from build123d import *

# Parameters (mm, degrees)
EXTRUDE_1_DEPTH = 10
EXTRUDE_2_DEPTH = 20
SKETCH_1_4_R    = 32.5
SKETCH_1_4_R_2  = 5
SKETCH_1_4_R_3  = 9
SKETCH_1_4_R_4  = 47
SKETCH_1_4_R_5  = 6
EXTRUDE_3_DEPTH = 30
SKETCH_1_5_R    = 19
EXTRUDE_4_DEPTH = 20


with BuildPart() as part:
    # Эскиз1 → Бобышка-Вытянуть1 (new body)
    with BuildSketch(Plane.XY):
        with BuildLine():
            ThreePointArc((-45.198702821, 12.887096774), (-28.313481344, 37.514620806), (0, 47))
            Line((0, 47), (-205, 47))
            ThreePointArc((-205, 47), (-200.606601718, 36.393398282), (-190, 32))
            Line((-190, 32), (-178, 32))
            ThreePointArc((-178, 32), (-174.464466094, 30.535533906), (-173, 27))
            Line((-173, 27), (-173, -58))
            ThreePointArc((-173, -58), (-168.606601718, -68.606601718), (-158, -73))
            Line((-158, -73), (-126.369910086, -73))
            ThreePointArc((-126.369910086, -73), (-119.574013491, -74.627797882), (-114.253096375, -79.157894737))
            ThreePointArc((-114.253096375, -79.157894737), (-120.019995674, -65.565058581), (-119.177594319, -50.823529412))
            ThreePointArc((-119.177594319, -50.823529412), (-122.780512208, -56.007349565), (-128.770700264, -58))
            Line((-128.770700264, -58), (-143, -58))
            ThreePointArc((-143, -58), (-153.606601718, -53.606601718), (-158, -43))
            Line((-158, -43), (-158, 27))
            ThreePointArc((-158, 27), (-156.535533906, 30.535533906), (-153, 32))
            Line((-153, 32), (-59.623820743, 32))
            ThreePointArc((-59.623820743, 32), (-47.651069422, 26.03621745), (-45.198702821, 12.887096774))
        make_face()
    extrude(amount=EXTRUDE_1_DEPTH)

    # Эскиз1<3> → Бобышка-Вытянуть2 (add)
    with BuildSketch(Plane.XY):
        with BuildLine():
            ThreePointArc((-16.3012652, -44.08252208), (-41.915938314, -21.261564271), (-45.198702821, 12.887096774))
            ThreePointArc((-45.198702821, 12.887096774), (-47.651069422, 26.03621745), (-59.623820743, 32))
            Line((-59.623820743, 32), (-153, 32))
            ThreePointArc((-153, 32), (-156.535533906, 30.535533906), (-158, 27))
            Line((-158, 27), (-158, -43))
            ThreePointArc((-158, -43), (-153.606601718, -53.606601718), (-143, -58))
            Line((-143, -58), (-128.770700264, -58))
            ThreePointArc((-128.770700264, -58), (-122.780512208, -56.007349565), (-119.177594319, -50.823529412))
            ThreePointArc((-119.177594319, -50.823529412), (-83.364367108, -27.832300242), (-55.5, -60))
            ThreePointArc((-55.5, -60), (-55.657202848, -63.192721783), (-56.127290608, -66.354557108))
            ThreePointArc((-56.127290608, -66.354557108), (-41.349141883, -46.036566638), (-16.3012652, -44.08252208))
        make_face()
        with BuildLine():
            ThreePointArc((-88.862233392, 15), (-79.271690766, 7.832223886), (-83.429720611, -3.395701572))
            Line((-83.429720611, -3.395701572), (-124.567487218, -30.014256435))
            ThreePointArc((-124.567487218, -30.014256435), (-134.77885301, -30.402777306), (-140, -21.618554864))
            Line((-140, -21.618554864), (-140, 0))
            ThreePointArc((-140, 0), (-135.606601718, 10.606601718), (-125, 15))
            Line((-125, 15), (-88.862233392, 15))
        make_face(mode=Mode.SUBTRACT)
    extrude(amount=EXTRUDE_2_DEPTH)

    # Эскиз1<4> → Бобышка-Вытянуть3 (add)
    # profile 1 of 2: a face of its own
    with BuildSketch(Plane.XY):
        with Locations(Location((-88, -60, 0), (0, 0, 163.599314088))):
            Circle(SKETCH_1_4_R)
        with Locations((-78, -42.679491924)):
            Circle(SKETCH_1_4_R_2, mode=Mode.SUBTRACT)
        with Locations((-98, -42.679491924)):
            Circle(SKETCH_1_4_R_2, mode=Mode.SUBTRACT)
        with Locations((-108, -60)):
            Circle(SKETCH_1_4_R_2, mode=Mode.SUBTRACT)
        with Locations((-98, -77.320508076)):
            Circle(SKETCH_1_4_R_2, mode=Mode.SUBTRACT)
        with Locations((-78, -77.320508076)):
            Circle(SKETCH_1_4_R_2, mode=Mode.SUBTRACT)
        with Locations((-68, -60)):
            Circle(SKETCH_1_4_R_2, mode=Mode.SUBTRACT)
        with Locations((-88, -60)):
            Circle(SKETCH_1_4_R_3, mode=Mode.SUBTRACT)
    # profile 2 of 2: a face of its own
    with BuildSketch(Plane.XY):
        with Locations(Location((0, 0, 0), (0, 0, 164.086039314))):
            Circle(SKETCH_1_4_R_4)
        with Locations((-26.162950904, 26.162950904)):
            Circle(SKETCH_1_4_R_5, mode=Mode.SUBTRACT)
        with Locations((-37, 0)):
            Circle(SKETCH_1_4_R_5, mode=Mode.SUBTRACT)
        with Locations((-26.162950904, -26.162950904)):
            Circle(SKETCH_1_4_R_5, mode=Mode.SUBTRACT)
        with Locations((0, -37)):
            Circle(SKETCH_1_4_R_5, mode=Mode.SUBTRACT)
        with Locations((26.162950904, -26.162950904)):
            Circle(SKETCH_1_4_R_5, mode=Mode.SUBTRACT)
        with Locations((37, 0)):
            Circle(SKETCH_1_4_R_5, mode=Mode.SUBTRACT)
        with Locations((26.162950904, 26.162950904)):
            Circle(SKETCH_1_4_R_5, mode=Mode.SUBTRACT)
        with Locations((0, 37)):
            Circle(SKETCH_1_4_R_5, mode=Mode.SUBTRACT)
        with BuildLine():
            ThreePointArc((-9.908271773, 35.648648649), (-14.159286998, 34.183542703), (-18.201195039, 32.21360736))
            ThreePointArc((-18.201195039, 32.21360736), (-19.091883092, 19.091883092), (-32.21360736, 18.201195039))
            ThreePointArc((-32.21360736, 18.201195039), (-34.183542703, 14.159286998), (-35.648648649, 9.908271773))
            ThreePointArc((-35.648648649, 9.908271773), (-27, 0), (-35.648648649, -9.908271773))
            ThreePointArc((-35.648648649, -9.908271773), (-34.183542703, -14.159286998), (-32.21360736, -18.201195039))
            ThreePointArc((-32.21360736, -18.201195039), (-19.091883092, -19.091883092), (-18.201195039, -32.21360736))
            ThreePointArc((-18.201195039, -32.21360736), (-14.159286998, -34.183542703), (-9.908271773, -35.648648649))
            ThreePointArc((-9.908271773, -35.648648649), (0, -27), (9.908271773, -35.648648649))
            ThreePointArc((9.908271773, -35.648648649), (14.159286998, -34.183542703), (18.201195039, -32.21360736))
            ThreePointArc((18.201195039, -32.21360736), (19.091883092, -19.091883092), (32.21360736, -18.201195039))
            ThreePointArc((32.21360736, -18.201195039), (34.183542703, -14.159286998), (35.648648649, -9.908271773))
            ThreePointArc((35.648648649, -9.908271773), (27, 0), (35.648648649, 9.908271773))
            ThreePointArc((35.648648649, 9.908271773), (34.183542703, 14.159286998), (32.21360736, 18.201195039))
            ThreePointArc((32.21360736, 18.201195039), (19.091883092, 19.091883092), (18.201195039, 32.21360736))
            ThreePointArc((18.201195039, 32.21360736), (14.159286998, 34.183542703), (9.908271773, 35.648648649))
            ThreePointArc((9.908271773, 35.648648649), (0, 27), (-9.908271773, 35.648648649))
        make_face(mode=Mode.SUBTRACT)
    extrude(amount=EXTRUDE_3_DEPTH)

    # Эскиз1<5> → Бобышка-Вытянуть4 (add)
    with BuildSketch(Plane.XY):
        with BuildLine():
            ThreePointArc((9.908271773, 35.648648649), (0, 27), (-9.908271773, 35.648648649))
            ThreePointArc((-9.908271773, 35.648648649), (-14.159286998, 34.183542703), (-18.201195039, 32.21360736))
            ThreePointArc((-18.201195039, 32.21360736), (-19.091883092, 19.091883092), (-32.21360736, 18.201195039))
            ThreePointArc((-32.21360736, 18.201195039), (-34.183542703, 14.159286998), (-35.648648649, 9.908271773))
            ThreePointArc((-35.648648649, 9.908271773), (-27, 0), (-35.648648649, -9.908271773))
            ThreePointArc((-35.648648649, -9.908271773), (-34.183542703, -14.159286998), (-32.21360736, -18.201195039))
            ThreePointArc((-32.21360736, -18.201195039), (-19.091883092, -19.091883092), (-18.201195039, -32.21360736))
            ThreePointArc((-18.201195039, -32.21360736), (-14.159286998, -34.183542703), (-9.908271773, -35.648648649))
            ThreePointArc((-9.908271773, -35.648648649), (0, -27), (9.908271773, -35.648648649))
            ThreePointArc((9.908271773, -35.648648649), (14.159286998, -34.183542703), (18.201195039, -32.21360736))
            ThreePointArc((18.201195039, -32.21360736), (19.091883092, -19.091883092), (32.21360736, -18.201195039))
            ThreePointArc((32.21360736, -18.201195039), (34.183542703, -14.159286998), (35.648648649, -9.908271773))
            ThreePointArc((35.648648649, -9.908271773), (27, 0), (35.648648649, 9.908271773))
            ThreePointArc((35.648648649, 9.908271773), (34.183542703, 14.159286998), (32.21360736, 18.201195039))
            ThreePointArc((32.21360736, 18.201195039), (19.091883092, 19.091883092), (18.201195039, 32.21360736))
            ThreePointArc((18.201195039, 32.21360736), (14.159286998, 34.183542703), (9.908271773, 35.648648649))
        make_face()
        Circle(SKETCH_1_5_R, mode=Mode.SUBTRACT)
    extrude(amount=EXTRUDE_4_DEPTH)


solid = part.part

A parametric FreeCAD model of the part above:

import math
import FreeCAD as App
import Part
import Sketcher

V = App.Vector

doc = App.newDocument("Part")
body = doc.addObject("PartDesign::Body", "Body")

# Sketch on XY plane
sketch1 = doc.addObject("Sketcher::SketchObject", "Sketch")
body.addObject(sketch1)
sketch1.AttachmentSupport = (doc.XY_Plane, [""])
sketch1.MapMode = "FlatFace"
sketch1.addGeometry([
    Part.ArcOfCircle(Part.Circle(V(0, 0, 0), V(0, 0, 1), 47), math.radians(90), math.radians(164)),  # 0
    Part.LineSegment(V(0, 47, 0), V(-205, 47, 0)),  # 1
    Part.ArcOfCircle(Part.Circle(V(-190, 47, 0), V(0, 0, 1), 15), math.radians(180), math.radians(270)),  # 2
    Part.LineSegment(V(-190, 32, 0), V(-178, 32, 0)),  # 3
    Part.ArcOfCircle(Part.Circle(V(-178, 27, 0), V(0, 0, 1), 5), math.radians(0), math.radians(90)),  # 4
    Part.LineSegment(V(-173, 27, 0), V(-173, -58, 0)),  # 5
    Part.ArcOfCircle(Part.Circle(V(-158, -58, 0), V(0, 0, 1), 15), math.radians(180), math.radians(270)),  # 6
    Part.LineSegment(V(-158, -73, 0), V(-126, -73, 0)),  # 7
    Part.ArcOfCircle(Part.Circle(V(-126, -88, 0), V(0, 0, 1), 15), math.radians(36), math.radians(90)),  # 8
    Part.ArcOfCircle(Part.Circle(V(-88, -60, 0), V(0, 0, 1), 33), math.radians(164), math.radians(216)),  # 9
    Part.ArcOfCircle(Part.Circle(V(-129, -48, 0), V(0, 0, 1), 10), math.radians(-90), math.radians(-16)),  # 10
    Part.LineSegment(V(-129, -58, 0), V(-143, -58, 0)),  # 11
    Part.ArcOfCircle(Part.Circle(V(-143, -43, 0), V(0, 0, 1), 15), math.radians(180), math.radians(270)),  # 12
    Part.LineSegment(V(-158, -43, 0), V(-158, 27, 0)),  # 13
    Part.ArcOfCircle(Part.Circle(V(-153, 27, 0), V(0, 0, 1), 5), math.radians(90), math.radians(180)),  # 14
    Part.LineSegment(V(-153, 32, 0), V(-60, 32, 0)),  # 15
    Part.ArcOfCircle(Part.Circle(V(-60, 17, 0), V(0, 0, 1), 15), math.radians(-16), math.radians(90)),  # 16
], False)
sketch1.addConstraint([
    Sketcher.Constraint("Tangent", 0, 1, 1, 1),
    Sketcher.Constraint("Coincident", 1, 2, 2, 1),
    Sketcher.Constraint("Tangent", 2, 2, 3, 1),
    Sketcher.Constraint("Tangent", 3, 2, 4, 2),
    Sketcher.Constraint("Tangent", 4, 1, 5, 1),
    Sketcher.Constraint("Tangent", 5, 2, 6, 1),
    Sketcher.Constraint("Tangent", 6, 2, 7, 1),
    Sketcher.Constraint("Tangent", 7, 2, 8, 2),
    Sketcher.Constraint("Tangent", 8, 1, 9, 2),
    Sketcher.Constraint("Tangent", 9, 1, 10, 2),
    Sketcher.Constraint("Tangent", 10, 1, 11, 1),
    Sketcher.Constraint("Tangent", 11, 2, 12, 2),
    Sketcher.Constraint("Tangent", 12, 1, 13, 1),
    Sketcher.Constraint("Tangent", 13, 2, 14, 2),
    Sketcher.Constraint("Tangent", 14, 1, 15, 1),
    Sketcher.Constraint("Tangent", 15, 2, 16, 2),
    Sketcher.Constraint("Tangent", 16, 1, 0, 2),
    Sketcher.Constraint("Horizontal", 1),
    Sketcher.Constraint("Horizontal", 3),
    Sketcher.Constraint("Vertical", 5),
    Sketcher.Constraint("Horizontal", 7),
    Sketcher.Constraint("Horizontal", 11),
    Sketcher.Constraint("Vertical", 13),
    Sketcher.Constraint("Horizontal", 15),
    Sketcher.Constraint("Coincident", 0, 3, -1, 1),
    Sketcher.Constraint("Equal", 2, 6),
    Sketcher.Constraint("Equal", 6, 8),
    Sketcher.Constraint("Equal", 8, 12),
    Sketcher.Constraint("Equal", 4, 14),
    Sketcher.Constraint("Equal", 12, 16),
    Sketcher.Constraint("Horizontal", 4, 3, 14, 3),
    Sketcher.Constraint("Horizontal", 2, 3, 0, 1),
    Sketcher.Constraint("Horizontal", 5, 2, 10, 1),
    Sketcher.Constraint("Vertical", 6, 2, 12, 1),
    Sketcher.Constraint("Radius", 0, 47.0),
    Sketcher.Constraint("Radius", 2, 15.0),
    Sketcher.Constraint("Radius", 4, 5.0),
    Sketcher.Constraint("Radius", 10, 10.0),
    Sketcher.Constraint("Radius", 9, 32.5),
    Sketcher.Constraint("DistanceX", 1, 2, 1, 1, 205.0),
    Sketcher.Constraint("DistanceX", 3, 1, 3, 2, 12.0),
    Sketcher.Constraint("DistanceY", 5, 2, 5, 1, 85.0),
    Sketcher.Constraint("DistanceX", 9, 3, -1, 1, 88.0),
    Sketcher.Constraint("DistanceY", 9, 3, -1, 1, 60.0),
])
pad1 = doc.addObject("PartDesign::Pad", "Pad")
body.addObject(pad1)
pad1.Profile = sketch1
pad1.Length = 10

# Sketch on XY plane
sketch2 = doc.addObject("Sketcher::SketchObject", "Sketch001")
body.addObject(sketch2)
sketch2.AttachmentSupport = (doc.XY_Plane, [""])
sketch2.MapMode = "FlatFace"
sketch2.addGeometry([
    Part.ArcOfCircle(Part.Circle(V(0, 0, 0), V(0, 0, 1), 47), math.radians(164), math.radians(250)),  # 0
    Part.ArcOfCircle(Part.Circle(V(-60, 17, 0), V(0, 0, 1), 15), math.radians(-16), math.radians(90)),  # 1
    Part.LineSegment(V(-60, 32, 0), V(-153, 32, 0)),  # 2
    Part.ArcOfCircle(Part.Circle(V(-153, 27, 0), V(0, 0, 1), 5), math.radians(90), math.radians(180)),  # 3
    Part.LineSegment(V(-158, 27, 0), V(-158, -43, 0)),  # 4
    Part.ArcOfCircle(Part.Circle(V(-143, -43, 0), V(0, 0, 1), 15), math.radians(180), math.radians(270)),  # 5
    Part.LineSegment(V(-143, -58, 0), V(-129, -58, 0)),  # 6
    Part.ArcOfCircle(Part.Circle(V(-129, -48, 0), V(0, 0, 1), 10), math.radians(-90), math.radians(-16)),  # 7
    Part.ArcOfCircle(Part.Circle(V(-88, -60, 0), V(0, 0, 1), 32), math.radians(0), math.radians(164)),  # 8
    Part.ArcOfCircle(Part.Circle(V(-88, -60, 0), V(0, 0, 1), 33), math.radians(-11.28), math.radians(0)),  # 9
    Part.ArcOfCircle(Part.Circle(V(-27, -72, 0), V(0, 0, 1), 30), math.radians(70), math.radians(169)),  # 10
    Part.LineSegment(V(-125, 15, 0), V(-89, 15, 0)),  # 11
    Part.ArcOfCircle(Part.Circle(V(-89, 5, 0), V(0, 0, 1), 10), math.radians(-57), math.radians(90)),  # 12
    Part.LineSegment(V(-83, -3, 0), V(-125, -30, 0)),  # 13
    Part.ArcOfCircle(Part.Circle(V(-130, -22, 0), V(0, 0, 1), 10), math.radians(180), math.radians(303)),  # 14
    Part.LineSegment(V(-140, -22, 0), V(-140, 0, 0)),  # 15
    Part.ArcOfCircle(Part.Circle(V(-125, 0, 0), V(0, 0, 1), 15), math.radians(90), math.radians(180)),  # 16
], False)
sketch2.addConstraint([
    Sketcher.Constraint("Tangent", 0, 1, 1, 1),
    Sketcher.Constraint("Tangent", 1, 2, 2, 1),
    Sketcher.Constraint("Tangent", 2, 2, 3, 1),
    Sketcher.Constraint("Tangent", 3, 2, 4, 1),
    Sketcher.Constraint("Tangent", 4, 2, 5, 1),
    Sketcher.Constraint("Tangent", 5, 2, 6, 1),
    Sketcher.Constraint("Tangent", 6, 2, 7, 1),
    Sketcher.Constraint("Tangent", 7, 2, 8, 2),
    Sketcher.Constraint("Tangent", 8, 1, 9, 2),
    Sketcher.Constraint("Tangent", 9, 1, 10, 2),
    Sketcher.Constraint("Tangent", 10, 1, 0, 2),
    Sketcher.Constraint("Tangent", 11, 2, 12, 2),
    Sketcher.Constraint("Tangent", 12, 1, 13, 1),
    Sketcher.Constraint("Tangent", 13, 2, 14, 2),
    Sketcher.Constraint("Tangent", 14, 1, 15, 1),
    Sketcher.Constraint("Tangent", 15, 2, 16, 2),
    Sketcher.Constraint("Tangent", 16, 1, 11, 1),
    Sketcher.Constraint("Horizontal", 2),
    Sketcher.Constraint("Vertical", 4),
    Sketcher.Constraint("Horizontal", 6),
    Sketcher.Constraint("Horizontal", 11),
    Sketcher.Constraint("Vertical", 15),
    Sketcher.Constraint("Coincident", 0, 3, -1, 1),
    Sketcher.Constraint("Equal", 1, 5),
    Sketcher.Constraint("Equal", 8, 9),
    Sketcher.Constraint("Equal", 7, 12),
    Sketcher.Constraint("Equal", 12, 14),
    Sketcher.Constraint("Equal", 5, 16),
    Sketcher.Constraint("PointOnObject", 16, 3, -1),
    Sketcher.Constraint("Horizontal", 9, 3, 8, 1),
    Sketcher.Constraint("Radius", 0, 47.0),
    Sketcher.Constraint("Radius", 1, 15.0),
    Sketcher.Constraint("Radius", 3, 5.0),
    Sketcher.Constraint("Radius", 7, 10.0),
    Sketcher.Constraint("Radius", 10, 30.0),
    Sketcher.Constraint("Radius", 8, 32.5),
    Sketcher.Constraint("DistanceY", 4, 2, 4, 1, 70.0),
    Sketcher.Constraint("DistanceY", -1, 1, 1, 3, 17.0),
    Sketcher.Constraint("DistanceX", 3, 3, -1, 1, 153.0),
    Sketcher.Constraint("DistanceX", 8, 3, -1, 1, 88.0),
    Sketcher.Constraint("DistanceY", 8, 3, -1, 1, 60.0),
    Sketcher.Constraint("DistanceX", 14, 3, -1, 1, 130.0),
    Sketcher.Constraint("DistanceY", 12, 1, -1, 1, 3.395702),
    Sketcher.Constraint("DistanceX", 12, 1, 1, 3, 23.8059),
])
pad2 = doc.addObject("PartDesign::Pad", "Pad001")
body.addObject(pad2)
pad2.Profile = sketch2
pad2.Length = 20

# Sketch on XY plane
sketch3 = doc.addObject("Sketcher::SketchObject", "Sketch002")
body.addObject(sketch3)
sketch3.AttachmentSupport = (doc.XY_Plane, [""])
sketch3.MapMode = "FlatFace"
sketch3.addGeometry([
    Part.Circle(V(-88, -60, 0), V(0, 0, 1), 32),  # 0
    Part.Circle(V(-78, -43, 0), V(0, 0, 1), 5),  # 1
    Part.Circle(V(-68, -60, 0), V(0, 0, 1), 5),  # 2
    Part.Circle(V(-98, -43, 0), V(0, 0, 1), 5),  # 3
    Part.Circle(V(-78, -77, 0), V(0, 0, 1), 5),  # 4
    Part.Circle(V(-88, -60, 0), V(0, 0, 1), 9),  # 5
    Part.Circle(V(-108, -60, 0), V(0, 0, 1), 5),  # 6
    Part.Circle(V(-98, -77, 0), V(0, 0, 1), 5),  # 7
    Part.Circle(V(0, 0, 0), V(0, 0, 1), 47),  # 8
    Part.Circle(V(26, 26, 0), V(0, 0, 1), 6),  # 9
    Part.Circle(V(37, 0, 0), V(0, 0, 1), 6),  # 10
    Part.Circle(V(0, 37, 0), V(0, 0, 1), 6),  # 11
    Part.Circle(V(-26, 26, 0), V(0, 0, 1), 6),  # 12
    Part.Circle(V(26, -26, 0), V(0, 0, 1), 6),  # 13
    Part.ArcOfCircle(Part.Circle(V(0, 0, 0), V(0, 0, 1), 37), math.radians(105.53), math.radians(119.47)),  # 14
    Part.ArcOfCircle(Part.Circle(V(0, 37, 0), V(0, 0, 1), 10), math.radians(-172), math.radians(-8)),  # 15
    Part.ArcOfCircle(Part.Circle(V(0, 0, 0), V(0, 0, 1), 37), math.radians(60.53), math.radians(74.47)),  # 16
    Part.ArcOfCircle(Part.Circle(V(26, 26, 0), V(0, 0, 1), 10), math.radians(143), math.radians(307)),  # 17
    Part.ArcOfCircle(Part.Circle(V(0, 0, 0), V(0, 0, 1), 37), math.radians(15.53), math.radians(29.47)),  # 18
    Part.ArcOfCircle(Part.Circle(V(37, 0, 0), V(0, 0, 1), 10), math.radians(98), math.radians(262)),  # 19
    Part.ArcOfCircle(Part.Circle(V(0, 0, 0), V(0, 0, 1), 37), math.radians(-29.47), math.radians(-15.53)),  # 20
    Part.ArcOfCircle(Part.Circle(V(26, -26, 0), V(0, 0, 1), 10), math.radians(53), math.radians(217)),  # 21
    Part.ArcOfCircle(Part.Circle(V(0, 0, 0), V(0, 0, 1), 37), math.radians(-74.47), math.radians(-60.53)),  # 22
    Part.ArcOfCircle(Part.Circle(V(0, -37, 0), V(0, 0, 1), 10), math.radians(8), math.radians(172)),  # 23
    Part.ArcOfCircle(Part.Circle(V(0, 0, 0), V(0, 0, 1), 37), math.radians(-119.47), math.radians(-105.53)),  # 24
    Part.ArcOfCircle(Part.Circle(V(-26, -26, 0), V(0, 0, 1), 10), math.radians(-37), math.radians(127)),  # 25
    Part.ArcOfCircle(Part.Circle(V(0, 0, 0), V(0, 0, 1), 37), math.radians(-164.47), math.radians(-150.53)),  # 26
    Part.ArcOfCircle(Part.Circle(V(-37, 0, 0), V(0, 0, 1), 10), math.radians(-82), math.radians(82)),  # 27
    Part.ArcOfCircle(Part.Circle(V(0, 0, 0), V(0, 0, 1), 37), math.radians(150.53), math.radians(164.47)),  # 28
    Part.ArcOfCircle(Part.Circle(V(-26, 26, 0), V(0, 0, 1), 10), math.radians(-127), math.radians(37)),  # 29
    Part.Circle(V(0, -37, 0), V(0, 0, 1), 6),  # 30
    Part.Circle(V(-37, 0, 0), V(0, 0, 1), 6),  # 31
    Part.Circle(V(-26, -26, 0), V(0, 0, 1), 6),  # 32
], False)
sketch3.addConstraint([
    Sketcher.Constraint("Coincident", 14, 1, 15, 1),
    Sketcher.Constraint("Coincident", 15, 2, 16, 2),
    Sketcher.Constraint("Coincident", 16, 1, 17, 1),
    Sketcher.Constraint("Coincident", 17, 2, 18, 2),
    Sketcher.Constraint("Coincident", 18, 1, 19, 1),
    Sketcher.Constraint("Coincident", 19, 2, 20, 2),
    Sketcher.Constraint("Coincident", 20, 1, 21, 1),
    Sketcher.Constraint("Coincident", 21, 2, 22, 2),
    Sketcher.Constraint("Coincident", 22, 1, 23, 1),
    Sketcher.Constraint("Coincident", 23, 2, 24, 2),
    Sketcher.Constraint("Coincident", 24, 1, 25, 1),
    Sketcher.Constraint("Coincident", 25, 2, 26, 2),
    Sketcher.Constraint("Coincident", 26, 1, 27, 1),
    Sketcher.Constraint("Coincident", 27, 2, 28, 2),
    Sketcher.Constraint("Coincident", 28, 1, 29, 1),
    Sketcher.Constraint("Coincident", 29, 2, 14, 2),
    Sketcher.Constraint("Coincident", 8, 3, -1, 1),
    Sketcher.Constraint("Coincident", 14, 3, -1, 1),
    Sketcher.Constraint("Coincident", 16, 3, -1, 1),
    Sketcher.Constraint("Coincident", 18, 3, -1, 1),
    Sketcher.Constraint("Coincident", 20, 3, -1, 1),
    Sketcher.Constraint("Coincident", 22, 3, -1, 1),
    Sketcher.Constraint("Coincident", 24, 3, -1, 1),
    Sketcher.Constraint("Coincident", 26, 3, -1, 1),
    Sketcher.Constraint("Coincident", 28, 3, -1, 1),
    Sketcher.Constraint("Coincident", 5, 3, 0, 3),
    Sketcher.Constraint("Coincident", 15, 3, 11, 3),
    Sketcher.Constraint("Coincident", 17, 3, 9, 3),
    Sketcher.Constraint("Coincident", 19, 3, 10, 3),
    Sketcher.Constraint("Coincident", 21, 3, 13, 3),
    Sketcher.Constraint("Coincident", 29, 3, 12, 3),
    Sketcher.Constraint("Coincident", 30, 3, 23, 3),
    Sketcher.Constraint("Coincident", 31, 3, 27, 3),
    Sketcher.Constraint("Coincident", 32, 3, 25, 3),
    Sketcher.Constraint("Equal", 1, 2),
    Sketcher.Constraint("Equal", 2, 3),
    Sketcher.Constraint("Equal", 3, 4),
    Sketcher.Constraint("Equal", 4, 6),
    Sketcher.Constraint("Equal", 6, 7),
    Sketcher.Constraint("Equal", 9, 10),
    Sketcher.Constraint("Equal", 10, 11),
    Sketcher.Constraint("Equal", 11, 12),
    Sketcher.Constraint("Equal", 12, 13),
    Sketcher.Constraint("Equal", 14, 16),
    Sketcher.Constraint("Equal", 15, 17),
    Sketcher.Constraint("Equal", 16, 18),
    Sketcher.Constraint("Equal", 17, 19),
    Sketcher.Constraint("Equal", 18, 20),
    Sketcher.Constraint("Equal", 19, 21),
    Sketcher.Constraint("Equal", 20, 22),
    Sketcher.Constraint("Equal", 21, 23),
    Sketcher.Constraint("Equal", 22, 24),
    Sketcher.Constraint("Equal", 23, 25),
    Sketcher.Constraint("Equal", 24, 26),
    Sketcher.Constraint("Equal", 25, 27),
    Sketcher.Constraint("Equal", 26, 28),
    Sketcher.Constraint("Equal", 27, 29),
    Sketcher.Constraint("Equal", 13, 30),
    Sketcher.Constraint("Equal", 30, 31),
    Sketcher.Constraint("Equal", 31, 32),
    Sketcher.Constraint("Symmetric", 12, 3, 13, 3, -1, 1),
    Sketcher.Constraint("Symmetric", 11, 3, 23, 3, -1, 1),
    Sketcher.Constraint("Symmetric", 9, 3, 25, 3, -1, 1),
    Sketcher.Constraint("Symmetric", 10, 3, 27, 3, -1, 1),
    Sketcher.Constraint("Symmetric", 9, 3, 12, 3, -2),
    Sketcher.Constraint("PointOnObject", 10, 3, -1),
    Sketcher.Constraint("PointOnObject", 11, 3, -2),
    Sketcher.Constraint("Horizontal", 0, 3, 2, 3),
    Sketcher.Constraint("Horizontal", 1, 3, 3, 3),
    Sketcher.Constraint("Horizontal", 5, 3, 6, 3),
    Sketcher.Constraint("Horizontal", 4, 3, 7, 3),
    Sketcher.Constraint("Vertical", 1, 3, 4, 3),
    Sketcher.Constraint("Vertical", 3, 3, 7, 3),
    Sketcher.Constraint("Diameter", 0, 65.0),
    Sketcher.Constraint("Diameter", 1, 10.0),
    Sketcher.Constraint("Diameter", 5, 18.0),
    Sketcher.Constraint("Diameter", 8, 94.0),
    Sketcher.Constraint("Diameter", 9, 12.0),
    Sketcher.Constraint("Radius", 14, 37.0),
    Sketcher.Constraint("Radius", 15, 10.0),
    Sketcher.Constraint("DistanceX", 0, 3, -1, 1, 88.0),
    Sketcher.Constraint("DistanceY", 0, 3, -1, 1, 60.0),
    Sketcher.Constraint("DistanceX", 1, 3, -1, 1, 78.0),
    Sketcher.Constraint("DistanceX", 2, 3, -1, 1, 68.0),
    Sketcher.Constraint("DistanceX", 3, 3, -1, 1, 98.0),
    Sketcher.Constraint("DistanceX", 6, 3, -1, 1, 108.0),
    Sketcher.Constraint("DistanceX", -1, 1, 10, 3, 37.0),
    Sketcher.Constraint("DistanceY", -1, 1, 11, 3, 37.0),
    Sketcher.Constraint("DistanceX", 12, 3, 9, 3, 52.325902),
    Sketcher.Constraint("DistanceY", 13, 3, 9, 3, 52.325902),
    Sketcher.Constraint("DistanceY", 1, 3, -1, 1, 42.679492),
    Sketcher.Constraint("DistanceY", 4, 3, -1, 1, 77.320508),
])
pad3 = doc.addObject("PartDesign::Pad", "Pad002")
body.addObject(pad3)
pad3.Profile = sketch3
pad3.Length = 30

# Sketch on XY plane
sketch4 = doc.addObject("Sketcher::SketchObject", "Sketch003")
body.addObject(sketch4)
sketch4.AttachmentSupport = (doc.XY_Plane, [""])
sketch4.MapMode = "FlatFace"
sketch4.addGeometry([
    Part.ArcOfCircle(Part.Circle(V(0, 37, 0), V(0, 0, 1), 10), math.radians(-172), math.radians(-8)),  # 0
    Part.ArcOfCircle(Part.Circle(V(0, 0, 0), V(0, 0, 1), 37), math.radians(105.53), math.radians(119.47)),  # 1
    Part.ArcOfCircle(Part.Circle(V(-26, 26, 0), V(0, 0, 1), 10), math.radians(-127), math.radians(37)),  # 2
    Part.ArcOfCircle(Part.Circle(V(0, 0, 0), V(0, 0, 1), 37), math.radians(150.53), math.radians(164.47)),  # 3
    Part.ArcOfCircle(Part.Circle(V(-37, 0, 0), V(0, 0, 1), 10), math.radians(-82), math.radians(82)),  # 4
    Part.ArcOfCircle(Part.Circle(V(0, 0, 0), V(0, 0, 1), 37), math.radians(-164.47), math.radians(-150.53)),  # 5
    Part.ArcOfCircle(Part.Circle(V(-26, -26, 0), V(0, 0, 1), 10), math.radians(-37), math.radians(127)),  # 6
    Part.ArcOfCircle(Part.Circle(V(0, 0, 0), V(0, 0, 1), 37), math.radians(-119.47), math.radians(-105.53)),  # 7
    Part.ArcOfCircle(Part.Circle(V(0, -37, 0), V(0, 0, 1), 10), math.radians(8), math.radians(172)),  # 8
    Part.ArcOfCircle(Part.Circle(V(0, 0, 0), V(0, 0, 1), 37), math.radians(-74.47), math.radians(-60.53)),  # 9
    Part.ArcOfCircle(Part.Circle(V(26, -26, 0), V(0, 0, 1), 10), math.radians(53), math.radians(217)),  # 10
    Part.ArcOfCircle(Part.Circle(V(0, 0, 0), V(0, 0, 1), 37), math.radians(-29.47), math.radians(-15.53)),  # 11
    Part.ArcOfCircle(Part.Circle(V(37, 0, 0), V(0, 0, 1), 10), math.radians(98), math.radians(262)),  # 12
    Part.ArcOfCircle(Part.Circle(V(0, 0, 0), V(0, 0, 1), 37), math.radians(15.53), math.radians(29.47)),  # 13
    Part.ArcOfCircle(Part.Circle(V(26, 26, 0), V(0, 0, 1), 10), math.radians(143), math.radians(307)),  # 14
    Part.ArcOfCircle(Part.Circle(V(0, 0, 0), V(0, 0, 1), 37), math.radians(60.53), math.radians(74.47)),  # 15
    Part.Circle(V(0, 0, 0), V(0, 0, 1), 19),  # 16
], False)
sketch4.addConstraint([
    Sketcher.Constraint("Coincident", 0, 1, 1, 1),
    Sketcher.Constraint("Coincident", 1, 2, 2, 2),
    Sketcher.Constraint("Coincident", 2, 1, 3, 1),
    Sketcher.Constraint("Coincident", 3, 2, 4, 2),
    Sketcher.Constraint("Coincident", 4, 1, 5, 1),
    Sketcher.Constraint("Coincident", 5, 2, 6, 2),
    Sketcher.Constraint("Coincident", 6, 1, 7, 1),
    Sketcher.Constraint("Coincident", 7, 2, 8, 2),
    Sketcher.Constraint("Coincident", 8, 1, 9, 1),
    Sketcher.Constraint("Coincident", 9, 2, 10, 2),
    Sketcher.Constraint("Coincident", 10, 1, 11, 1),
    Sketcher.Constraint("Coincident", 11, 2, 12, 2),
    Sketcher.Constraint("Coincident", 12, 1, 13, 1),
    Sketcher.Constraint("Coincident", 13, 2, 14, 2),
    Sketcher.Constraint("Coincident", 14, 1, 15, 1),
    Sketcher.Constraint("Coincident", 15, 2, 0, 2),
    Sketcher.Constraint("Coincident", 1, 3, -1, 1),
    Sketcher.Constraint("Coincident", 3, 3, -1, 1),
    Sketcher.Constraint("Coincident", 5, 3, -1, 1),
    Sketcher.Constraint("Coincident", 7, 3, -1, 1),
    Sketcher.Constraint("Coincident", 9, 3, -1, 1),
    Sketcher.Constraint("Coincident", 11, 3, -1, 1),
    Sketcher.Constraint("Coincident", 13, 3, -1, 1),
    Sketcher.Constraint("Coincident", 15, 3, -1, 1),
    Sketcher.Constraint("Coincident", 16, 3, -1, 1),
    Sketcher.Constraint("Equal", 0, 2),
    Sketcher.Constraint("Equal", 1, 3),
    Sketcher.Constraint("Equal", 2, 4),
    Sketcher.Constraint("Equal", 3, 5),
    Sketcher.Constraint("Equal", 4, 6),
    Sketcher.Constraint("Equal", 5, 7),
    Sketcher.Constraint("Equal", 6, 8),
    Sketcher.Constraint("Equal", 7, 9),
    Sketcher.Constraint("Equal", 8, 10),
    Sketcher.Constraint("Equal", 9, 11),
    Sketcher.Constraint("Equal", 10, 12),
    Sketcher.Constraint("Equal", 11, 13),
    Sketcher.Constraint("Equal", 12, 14),
    Sketcher.Constraint("Equal", 13, 15),
    Sketcher.Constraint("Symmetric", 0, 3, 8, 3, -1, 1),
    Sketcher.Constraint("Symmetric", 2, 3, 10, 3, -1, 1),
    Sketcher.Constraint("Symmetric", 4, 3, 12, 3, -1, 1),
    Sketcher.Constraint("Symmetric", 6, 3, 14, 3, -1, 1),
    Sketcher.Constraint("Symmetric", 6, 3, 10, 3, -2),
    Sketcher.Constraint("PointOnObject", 0, 3, -2),
    Sketcher.Constraint("PointOnObject", 4, 3, -1),
    Sketcher.Constraint("Diameter", 16, 38.0),
    Sketcher.Constraint("Radius", 0, 10.0),
    Sketcher.Constraint("Radius", 1, 37.0),
    Sketcher.Constraint("DistanceY", -1, 1, 0, 3, 37.0),
    Sketcher.Constraint("DistanceX", 4, 3, -1, 1, 37.0),
    Sketcher.Constraint("DistanceY", 6, 3, 2, 3, 52.325902),
    Sketcher.Constraint("DistanceX", 2, 3, -1, 1, 26.162951),
])
pad4 = doc.addObject("PartDesign::Pad", "Pad003")
body.addObject(pad4)
pad4.Profile = sketch4
pad4.Length = 20

doc.recompute()
